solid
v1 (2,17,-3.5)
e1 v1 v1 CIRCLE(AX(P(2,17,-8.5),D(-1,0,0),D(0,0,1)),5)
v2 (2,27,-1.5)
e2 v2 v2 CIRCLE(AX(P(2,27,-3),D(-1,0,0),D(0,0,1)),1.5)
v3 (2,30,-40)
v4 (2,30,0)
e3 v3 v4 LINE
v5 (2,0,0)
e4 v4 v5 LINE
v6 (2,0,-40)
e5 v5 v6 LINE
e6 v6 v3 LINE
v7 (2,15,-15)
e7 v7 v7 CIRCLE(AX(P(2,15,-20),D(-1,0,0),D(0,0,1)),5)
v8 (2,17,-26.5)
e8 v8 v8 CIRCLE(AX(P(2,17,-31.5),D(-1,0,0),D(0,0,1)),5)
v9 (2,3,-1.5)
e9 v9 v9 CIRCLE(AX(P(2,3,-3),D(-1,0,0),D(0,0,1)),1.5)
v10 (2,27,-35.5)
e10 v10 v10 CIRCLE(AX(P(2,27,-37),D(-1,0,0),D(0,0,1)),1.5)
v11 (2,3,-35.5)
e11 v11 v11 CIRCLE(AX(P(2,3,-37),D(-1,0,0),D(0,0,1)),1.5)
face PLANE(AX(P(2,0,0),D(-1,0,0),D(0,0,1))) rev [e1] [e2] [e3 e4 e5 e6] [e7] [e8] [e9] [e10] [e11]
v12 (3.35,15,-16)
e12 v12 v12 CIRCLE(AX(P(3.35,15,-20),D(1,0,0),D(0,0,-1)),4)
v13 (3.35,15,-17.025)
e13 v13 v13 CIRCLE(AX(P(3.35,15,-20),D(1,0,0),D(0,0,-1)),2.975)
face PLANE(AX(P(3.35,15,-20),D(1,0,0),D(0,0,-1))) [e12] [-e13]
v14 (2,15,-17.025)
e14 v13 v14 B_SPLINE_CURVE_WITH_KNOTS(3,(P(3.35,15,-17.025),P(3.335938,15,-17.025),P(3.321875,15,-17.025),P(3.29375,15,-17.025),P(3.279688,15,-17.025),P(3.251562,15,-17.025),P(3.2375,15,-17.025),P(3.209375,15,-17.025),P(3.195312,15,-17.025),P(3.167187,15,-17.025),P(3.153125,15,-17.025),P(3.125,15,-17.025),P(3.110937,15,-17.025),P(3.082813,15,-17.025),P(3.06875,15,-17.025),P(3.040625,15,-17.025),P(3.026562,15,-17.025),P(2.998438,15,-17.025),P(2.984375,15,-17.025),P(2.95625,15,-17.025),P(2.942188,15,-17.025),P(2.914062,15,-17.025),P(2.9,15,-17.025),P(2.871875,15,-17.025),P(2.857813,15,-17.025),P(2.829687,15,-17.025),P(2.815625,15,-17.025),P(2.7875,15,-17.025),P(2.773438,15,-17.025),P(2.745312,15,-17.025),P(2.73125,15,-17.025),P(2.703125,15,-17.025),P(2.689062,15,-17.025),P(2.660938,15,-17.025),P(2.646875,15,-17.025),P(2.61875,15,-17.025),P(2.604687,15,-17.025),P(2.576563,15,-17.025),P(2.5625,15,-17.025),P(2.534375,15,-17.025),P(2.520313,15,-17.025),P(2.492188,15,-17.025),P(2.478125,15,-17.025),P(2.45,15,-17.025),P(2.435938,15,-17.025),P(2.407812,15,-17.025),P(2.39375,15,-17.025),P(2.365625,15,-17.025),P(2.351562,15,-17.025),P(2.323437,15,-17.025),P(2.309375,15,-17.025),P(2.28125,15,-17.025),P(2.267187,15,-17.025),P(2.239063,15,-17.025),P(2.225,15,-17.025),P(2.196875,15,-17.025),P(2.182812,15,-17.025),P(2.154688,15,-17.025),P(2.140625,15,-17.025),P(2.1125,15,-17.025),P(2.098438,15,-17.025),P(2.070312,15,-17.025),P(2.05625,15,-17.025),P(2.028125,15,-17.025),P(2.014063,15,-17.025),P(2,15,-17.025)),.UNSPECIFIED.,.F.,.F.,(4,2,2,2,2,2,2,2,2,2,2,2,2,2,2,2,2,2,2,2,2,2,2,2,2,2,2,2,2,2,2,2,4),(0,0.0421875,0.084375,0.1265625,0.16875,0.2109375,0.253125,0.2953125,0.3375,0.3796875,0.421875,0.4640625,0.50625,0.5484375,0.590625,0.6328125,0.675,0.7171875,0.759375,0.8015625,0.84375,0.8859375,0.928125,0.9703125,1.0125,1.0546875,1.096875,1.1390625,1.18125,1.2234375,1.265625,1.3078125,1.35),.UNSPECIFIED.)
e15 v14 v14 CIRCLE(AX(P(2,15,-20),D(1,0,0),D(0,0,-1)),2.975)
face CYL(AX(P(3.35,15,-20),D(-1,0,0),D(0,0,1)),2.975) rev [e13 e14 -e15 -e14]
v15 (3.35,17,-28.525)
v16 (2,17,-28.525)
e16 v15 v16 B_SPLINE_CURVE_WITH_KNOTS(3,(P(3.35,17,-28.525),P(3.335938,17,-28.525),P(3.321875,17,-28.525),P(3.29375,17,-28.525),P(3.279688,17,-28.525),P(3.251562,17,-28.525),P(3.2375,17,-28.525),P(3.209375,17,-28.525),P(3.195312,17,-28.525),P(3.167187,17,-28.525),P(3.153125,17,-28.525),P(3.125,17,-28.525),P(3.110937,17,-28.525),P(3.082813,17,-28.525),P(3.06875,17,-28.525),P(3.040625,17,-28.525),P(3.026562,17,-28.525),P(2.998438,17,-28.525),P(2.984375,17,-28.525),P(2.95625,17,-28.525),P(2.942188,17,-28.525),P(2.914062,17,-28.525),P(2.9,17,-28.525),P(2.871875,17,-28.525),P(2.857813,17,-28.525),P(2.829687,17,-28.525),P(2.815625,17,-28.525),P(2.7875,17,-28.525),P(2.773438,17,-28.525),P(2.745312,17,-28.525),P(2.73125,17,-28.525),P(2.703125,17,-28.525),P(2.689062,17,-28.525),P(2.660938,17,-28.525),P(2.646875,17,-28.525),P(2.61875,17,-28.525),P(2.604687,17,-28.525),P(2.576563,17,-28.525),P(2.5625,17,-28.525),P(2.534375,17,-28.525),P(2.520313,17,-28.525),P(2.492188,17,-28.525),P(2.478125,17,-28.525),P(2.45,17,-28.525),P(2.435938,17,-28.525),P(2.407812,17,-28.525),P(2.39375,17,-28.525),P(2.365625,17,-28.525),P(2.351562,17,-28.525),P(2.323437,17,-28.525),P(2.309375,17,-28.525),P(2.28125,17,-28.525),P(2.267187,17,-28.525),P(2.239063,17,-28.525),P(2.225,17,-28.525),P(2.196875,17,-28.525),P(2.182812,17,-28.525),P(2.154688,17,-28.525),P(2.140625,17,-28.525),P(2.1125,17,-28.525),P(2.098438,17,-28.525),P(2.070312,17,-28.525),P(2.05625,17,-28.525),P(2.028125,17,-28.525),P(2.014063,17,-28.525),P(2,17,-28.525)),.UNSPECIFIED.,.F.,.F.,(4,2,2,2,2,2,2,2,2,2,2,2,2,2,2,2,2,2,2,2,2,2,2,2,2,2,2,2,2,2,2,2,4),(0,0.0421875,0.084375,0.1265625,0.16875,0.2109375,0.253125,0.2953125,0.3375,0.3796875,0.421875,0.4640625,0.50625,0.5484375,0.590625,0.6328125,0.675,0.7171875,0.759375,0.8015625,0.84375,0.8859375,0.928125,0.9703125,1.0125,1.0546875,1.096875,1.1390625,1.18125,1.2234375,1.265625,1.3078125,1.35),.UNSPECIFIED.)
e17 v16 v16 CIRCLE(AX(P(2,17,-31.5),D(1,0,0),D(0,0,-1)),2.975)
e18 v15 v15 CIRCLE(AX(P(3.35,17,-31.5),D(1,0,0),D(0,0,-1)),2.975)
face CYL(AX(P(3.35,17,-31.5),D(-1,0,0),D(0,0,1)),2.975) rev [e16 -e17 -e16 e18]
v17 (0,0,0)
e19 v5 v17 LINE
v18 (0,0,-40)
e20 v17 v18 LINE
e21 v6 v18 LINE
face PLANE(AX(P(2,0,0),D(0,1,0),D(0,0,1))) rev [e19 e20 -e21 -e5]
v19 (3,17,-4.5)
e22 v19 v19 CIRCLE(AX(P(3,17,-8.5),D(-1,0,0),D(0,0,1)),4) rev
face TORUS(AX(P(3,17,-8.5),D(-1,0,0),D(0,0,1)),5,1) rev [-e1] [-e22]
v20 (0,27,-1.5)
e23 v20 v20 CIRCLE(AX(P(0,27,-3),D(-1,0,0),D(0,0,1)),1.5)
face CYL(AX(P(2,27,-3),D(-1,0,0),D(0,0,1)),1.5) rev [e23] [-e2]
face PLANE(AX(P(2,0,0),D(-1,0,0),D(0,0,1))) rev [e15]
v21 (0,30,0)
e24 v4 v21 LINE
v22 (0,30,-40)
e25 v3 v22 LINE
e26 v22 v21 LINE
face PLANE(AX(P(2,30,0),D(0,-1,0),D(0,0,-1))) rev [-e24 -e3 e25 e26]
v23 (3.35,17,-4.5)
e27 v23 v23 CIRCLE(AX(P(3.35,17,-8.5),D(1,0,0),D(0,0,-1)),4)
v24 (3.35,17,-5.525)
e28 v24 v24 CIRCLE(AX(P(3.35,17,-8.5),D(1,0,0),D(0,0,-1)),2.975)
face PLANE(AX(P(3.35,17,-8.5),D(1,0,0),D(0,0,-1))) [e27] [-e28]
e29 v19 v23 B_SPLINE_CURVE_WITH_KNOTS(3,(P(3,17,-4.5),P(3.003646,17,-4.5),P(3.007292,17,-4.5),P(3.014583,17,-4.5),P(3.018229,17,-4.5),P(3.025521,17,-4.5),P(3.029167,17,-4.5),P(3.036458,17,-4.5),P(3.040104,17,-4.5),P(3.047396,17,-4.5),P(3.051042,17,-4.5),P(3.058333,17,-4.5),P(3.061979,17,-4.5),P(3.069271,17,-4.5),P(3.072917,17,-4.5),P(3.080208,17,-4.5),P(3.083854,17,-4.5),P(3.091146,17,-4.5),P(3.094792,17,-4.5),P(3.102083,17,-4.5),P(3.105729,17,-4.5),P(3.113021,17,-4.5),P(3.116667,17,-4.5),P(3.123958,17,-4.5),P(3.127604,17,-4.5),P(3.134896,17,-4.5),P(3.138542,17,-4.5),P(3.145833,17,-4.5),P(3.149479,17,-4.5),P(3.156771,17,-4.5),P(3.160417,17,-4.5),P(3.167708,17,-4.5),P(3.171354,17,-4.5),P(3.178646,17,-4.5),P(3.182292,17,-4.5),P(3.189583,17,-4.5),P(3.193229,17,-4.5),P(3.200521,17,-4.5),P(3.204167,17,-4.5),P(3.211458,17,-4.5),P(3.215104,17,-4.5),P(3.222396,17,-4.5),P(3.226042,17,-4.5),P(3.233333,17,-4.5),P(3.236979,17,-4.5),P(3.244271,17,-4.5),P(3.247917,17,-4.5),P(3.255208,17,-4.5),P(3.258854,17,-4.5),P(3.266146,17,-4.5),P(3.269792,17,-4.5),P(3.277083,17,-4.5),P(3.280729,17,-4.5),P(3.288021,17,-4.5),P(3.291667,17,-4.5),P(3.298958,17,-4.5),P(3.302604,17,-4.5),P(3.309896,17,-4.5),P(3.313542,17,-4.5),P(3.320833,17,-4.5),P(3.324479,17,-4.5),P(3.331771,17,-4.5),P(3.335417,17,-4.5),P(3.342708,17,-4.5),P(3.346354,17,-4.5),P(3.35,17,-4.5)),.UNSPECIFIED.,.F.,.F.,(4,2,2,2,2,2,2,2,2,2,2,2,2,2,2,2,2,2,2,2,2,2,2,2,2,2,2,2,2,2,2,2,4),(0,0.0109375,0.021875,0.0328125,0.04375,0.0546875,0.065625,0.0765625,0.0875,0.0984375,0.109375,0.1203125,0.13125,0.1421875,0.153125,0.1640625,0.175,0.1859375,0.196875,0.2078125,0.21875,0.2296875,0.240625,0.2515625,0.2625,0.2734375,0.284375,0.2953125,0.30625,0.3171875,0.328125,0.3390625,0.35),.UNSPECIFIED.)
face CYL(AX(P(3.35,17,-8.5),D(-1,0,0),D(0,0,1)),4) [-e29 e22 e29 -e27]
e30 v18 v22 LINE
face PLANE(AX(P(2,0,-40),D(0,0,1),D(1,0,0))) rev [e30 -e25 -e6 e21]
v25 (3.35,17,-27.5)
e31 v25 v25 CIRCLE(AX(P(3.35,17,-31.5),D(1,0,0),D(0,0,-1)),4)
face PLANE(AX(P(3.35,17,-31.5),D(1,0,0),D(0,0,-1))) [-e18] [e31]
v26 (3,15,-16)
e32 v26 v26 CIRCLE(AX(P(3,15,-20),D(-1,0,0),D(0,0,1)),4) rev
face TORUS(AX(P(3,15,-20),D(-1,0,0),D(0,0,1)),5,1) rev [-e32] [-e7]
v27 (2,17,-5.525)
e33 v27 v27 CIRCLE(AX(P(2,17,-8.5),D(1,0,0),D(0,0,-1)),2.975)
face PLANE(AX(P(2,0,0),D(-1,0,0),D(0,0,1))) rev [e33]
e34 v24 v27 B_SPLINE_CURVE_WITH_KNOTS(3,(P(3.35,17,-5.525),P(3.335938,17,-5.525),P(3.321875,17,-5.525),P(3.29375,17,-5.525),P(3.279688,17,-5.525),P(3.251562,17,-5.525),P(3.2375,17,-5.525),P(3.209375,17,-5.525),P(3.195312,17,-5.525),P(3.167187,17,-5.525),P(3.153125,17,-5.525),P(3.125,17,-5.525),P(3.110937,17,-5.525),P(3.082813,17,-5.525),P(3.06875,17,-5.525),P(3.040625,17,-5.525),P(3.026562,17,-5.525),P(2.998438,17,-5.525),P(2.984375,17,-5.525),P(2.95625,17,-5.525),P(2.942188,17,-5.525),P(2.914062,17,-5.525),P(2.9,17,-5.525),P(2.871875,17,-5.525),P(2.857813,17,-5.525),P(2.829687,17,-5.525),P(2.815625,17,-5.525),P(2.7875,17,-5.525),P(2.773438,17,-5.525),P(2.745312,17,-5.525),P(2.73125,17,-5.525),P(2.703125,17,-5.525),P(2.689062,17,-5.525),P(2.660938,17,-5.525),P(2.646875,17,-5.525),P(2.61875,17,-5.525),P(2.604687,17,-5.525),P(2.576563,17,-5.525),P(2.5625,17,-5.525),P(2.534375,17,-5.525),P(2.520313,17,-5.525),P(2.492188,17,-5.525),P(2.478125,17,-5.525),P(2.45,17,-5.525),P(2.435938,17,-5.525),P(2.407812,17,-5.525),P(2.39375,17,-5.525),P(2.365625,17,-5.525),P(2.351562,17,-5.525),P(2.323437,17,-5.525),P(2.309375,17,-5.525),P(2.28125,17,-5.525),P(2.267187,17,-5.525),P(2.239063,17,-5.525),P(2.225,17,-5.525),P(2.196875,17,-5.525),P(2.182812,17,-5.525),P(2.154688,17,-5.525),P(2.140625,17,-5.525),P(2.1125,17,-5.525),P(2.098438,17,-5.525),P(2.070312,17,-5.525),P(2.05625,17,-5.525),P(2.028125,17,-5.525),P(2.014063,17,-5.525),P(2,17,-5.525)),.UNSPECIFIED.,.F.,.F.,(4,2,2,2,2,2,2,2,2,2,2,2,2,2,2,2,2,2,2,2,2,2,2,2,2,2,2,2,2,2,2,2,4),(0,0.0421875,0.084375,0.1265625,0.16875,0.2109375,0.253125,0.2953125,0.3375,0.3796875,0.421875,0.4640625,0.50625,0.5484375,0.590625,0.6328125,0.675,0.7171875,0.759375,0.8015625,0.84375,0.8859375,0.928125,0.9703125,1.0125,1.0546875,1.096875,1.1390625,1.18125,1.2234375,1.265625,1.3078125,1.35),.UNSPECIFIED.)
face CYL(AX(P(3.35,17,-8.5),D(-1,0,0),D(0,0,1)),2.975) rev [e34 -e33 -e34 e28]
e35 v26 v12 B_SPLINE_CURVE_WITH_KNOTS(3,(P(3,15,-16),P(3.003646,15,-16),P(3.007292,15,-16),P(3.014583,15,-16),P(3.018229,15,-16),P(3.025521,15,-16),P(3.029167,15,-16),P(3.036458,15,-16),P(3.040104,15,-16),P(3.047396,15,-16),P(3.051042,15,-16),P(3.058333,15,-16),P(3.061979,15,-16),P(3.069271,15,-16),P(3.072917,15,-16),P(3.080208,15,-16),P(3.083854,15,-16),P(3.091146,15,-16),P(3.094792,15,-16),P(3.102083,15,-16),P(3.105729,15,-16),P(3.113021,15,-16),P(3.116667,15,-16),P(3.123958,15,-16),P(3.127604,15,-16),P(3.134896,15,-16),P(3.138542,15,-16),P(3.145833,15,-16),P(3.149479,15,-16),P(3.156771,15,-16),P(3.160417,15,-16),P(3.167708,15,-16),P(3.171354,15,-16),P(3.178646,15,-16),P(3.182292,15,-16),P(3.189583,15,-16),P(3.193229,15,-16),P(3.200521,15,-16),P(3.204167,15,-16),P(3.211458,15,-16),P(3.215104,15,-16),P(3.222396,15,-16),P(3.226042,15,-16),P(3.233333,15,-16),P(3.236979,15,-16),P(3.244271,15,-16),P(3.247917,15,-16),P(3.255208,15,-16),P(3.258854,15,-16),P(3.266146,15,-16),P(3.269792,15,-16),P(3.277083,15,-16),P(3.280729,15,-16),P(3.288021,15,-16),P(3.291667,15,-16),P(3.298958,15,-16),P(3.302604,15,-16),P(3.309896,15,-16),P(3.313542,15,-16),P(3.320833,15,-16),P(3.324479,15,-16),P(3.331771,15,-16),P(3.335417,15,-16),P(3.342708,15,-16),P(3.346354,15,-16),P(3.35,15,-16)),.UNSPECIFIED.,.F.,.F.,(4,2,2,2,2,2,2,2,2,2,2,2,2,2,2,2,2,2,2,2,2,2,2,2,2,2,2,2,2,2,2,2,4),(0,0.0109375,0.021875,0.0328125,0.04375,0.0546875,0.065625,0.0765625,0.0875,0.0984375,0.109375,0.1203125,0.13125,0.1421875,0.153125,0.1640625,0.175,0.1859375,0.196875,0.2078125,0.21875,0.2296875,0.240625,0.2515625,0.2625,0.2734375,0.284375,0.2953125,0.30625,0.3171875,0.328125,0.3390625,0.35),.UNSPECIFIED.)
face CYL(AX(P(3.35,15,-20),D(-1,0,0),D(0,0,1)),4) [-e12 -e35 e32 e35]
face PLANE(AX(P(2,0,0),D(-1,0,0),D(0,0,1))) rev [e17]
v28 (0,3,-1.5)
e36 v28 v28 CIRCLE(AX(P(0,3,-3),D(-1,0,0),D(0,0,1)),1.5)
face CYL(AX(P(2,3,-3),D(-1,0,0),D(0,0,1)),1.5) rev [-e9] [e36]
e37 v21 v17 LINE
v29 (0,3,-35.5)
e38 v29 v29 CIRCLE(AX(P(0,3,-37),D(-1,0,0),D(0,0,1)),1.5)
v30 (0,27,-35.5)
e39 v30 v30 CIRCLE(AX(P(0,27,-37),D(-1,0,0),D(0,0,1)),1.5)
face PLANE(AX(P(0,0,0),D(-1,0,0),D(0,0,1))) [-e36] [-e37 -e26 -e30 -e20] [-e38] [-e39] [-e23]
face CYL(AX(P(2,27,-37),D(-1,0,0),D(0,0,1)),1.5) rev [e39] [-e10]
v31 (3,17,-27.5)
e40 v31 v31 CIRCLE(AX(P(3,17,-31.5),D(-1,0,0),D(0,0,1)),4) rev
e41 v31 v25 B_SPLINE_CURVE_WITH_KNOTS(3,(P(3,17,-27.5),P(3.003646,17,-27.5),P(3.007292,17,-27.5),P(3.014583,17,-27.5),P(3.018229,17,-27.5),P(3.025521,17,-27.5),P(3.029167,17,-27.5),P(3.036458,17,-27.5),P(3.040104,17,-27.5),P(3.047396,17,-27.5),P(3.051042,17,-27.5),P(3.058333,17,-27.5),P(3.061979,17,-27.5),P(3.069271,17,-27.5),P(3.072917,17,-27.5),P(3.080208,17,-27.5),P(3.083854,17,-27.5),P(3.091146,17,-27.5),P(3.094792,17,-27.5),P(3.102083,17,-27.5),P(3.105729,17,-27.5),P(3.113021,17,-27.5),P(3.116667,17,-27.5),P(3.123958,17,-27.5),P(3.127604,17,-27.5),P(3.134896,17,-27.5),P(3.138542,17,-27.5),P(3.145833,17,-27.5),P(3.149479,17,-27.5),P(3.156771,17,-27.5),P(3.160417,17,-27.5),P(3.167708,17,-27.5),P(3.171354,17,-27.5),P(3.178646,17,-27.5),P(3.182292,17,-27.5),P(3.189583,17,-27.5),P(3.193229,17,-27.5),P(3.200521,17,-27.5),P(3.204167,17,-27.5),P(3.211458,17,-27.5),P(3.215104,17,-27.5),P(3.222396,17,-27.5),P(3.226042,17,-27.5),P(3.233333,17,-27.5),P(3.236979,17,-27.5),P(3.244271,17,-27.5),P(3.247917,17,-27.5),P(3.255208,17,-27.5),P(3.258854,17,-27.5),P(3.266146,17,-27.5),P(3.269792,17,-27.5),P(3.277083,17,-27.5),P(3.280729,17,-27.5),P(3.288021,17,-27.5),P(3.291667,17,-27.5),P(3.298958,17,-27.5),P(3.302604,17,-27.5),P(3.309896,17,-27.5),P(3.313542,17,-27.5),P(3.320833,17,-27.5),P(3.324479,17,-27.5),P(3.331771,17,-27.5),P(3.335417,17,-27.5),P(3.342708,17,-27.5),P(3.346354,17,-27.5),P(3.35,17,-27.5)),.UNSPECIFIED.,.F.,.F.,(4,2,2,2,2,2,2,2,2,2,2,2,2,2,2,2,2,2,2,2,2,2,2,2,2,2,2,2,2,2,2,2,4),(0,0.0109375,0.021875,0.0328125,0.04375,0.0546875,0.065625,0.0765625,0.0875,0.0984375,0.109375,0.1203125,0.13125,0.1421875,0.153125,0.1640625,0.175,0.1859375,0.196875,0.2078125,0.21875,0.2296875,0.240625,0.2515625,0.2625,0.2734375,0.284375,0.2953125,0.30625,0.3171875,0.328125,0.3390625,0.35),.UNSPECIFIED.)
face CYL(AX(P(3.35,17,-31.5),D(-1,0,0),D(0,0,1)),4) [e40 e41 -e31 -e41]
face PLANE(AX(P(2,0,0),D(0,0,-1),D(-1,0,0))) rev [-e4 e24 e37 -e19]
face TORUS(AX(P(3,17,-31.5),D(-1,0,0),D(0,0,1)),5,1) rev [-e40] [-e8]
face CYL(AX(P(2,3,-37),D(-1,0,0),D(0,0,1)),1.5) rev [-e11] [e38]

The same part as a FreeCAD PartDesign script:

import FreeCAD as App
import Part
import Sketcher
from FreeCAD import Vector
Q = App.Units.Quantity


def edges_at(feature, points):
    """Names of the edges that pass closest to the given points."""
    edges = feature.Shape.Edges
    near = lambda p: min(range(len(edges)), key=lambda i: edges[i].distToShape(Part.Vertex(*p))[0])
    return sorted({f"Edge{near(p) + 1}" for p in points})


def add_polygon(sketch, points):
    """Adds a closed chain of lines whose ends are joined by coincident constraints."""
    first, n = sketch.GeometryCount, len(points)
    for a, b in zip(points, points[1:] + points[:1]):
        sketch.addGeometry(Part.LineSegment(App.Vector(*a, 0), App.Vector(*b, 0)), False)
    for i in range(n):
        sketch.addConstraint(Sketcher.Constraint("Coincident", first + i, 2, first + (i + 1) % n, 1))

doc = App.newDocument("Part")
body = doc.addObject("PartDesign::Body", "Body")

# Sketch on YZ plane
sketch1 = body.newObject("Sketcher::SketchObject", "Sketch")
sketch1.AttachmentSupport = (doc.getObject("YZ_Plane"), [""])
sketch1.MapMode = "FlatFace"
add_polygon(sketch1, [(30, 0), (0, 0), (0, -40), (30, -40)])  # lines 0-3
sketch1.addConstraint([
    Sketcher.Constraint("Horizontal", 0),
    Sketcher.Constraint("Vertical", 1),
    Sketcher.Constraint("Horizontal", 2),
    Sketcher.Constraint("Vertical", 3),
    Sketcher.Constraint("Coincident", 0, 2, -1, 1),
    Sketcher.Constraint("DistanceX", 0, 2, 0, 1, Q("30 mm")),
    Sketcher.Constraint("DistanceY", 1, 2, 1, 1, Q("40 mm")),
])
pad1 = body.newObject("PartDesign::Pad", "Pad")
pad1.Profile = sketch1
pad1.Length = 2

# Sketch on YZ plane
sketch2 = body.newObject("Sketcher::SketchObject", "Sketch001")
sketch2.AttachmentSupport = (doc.getObject("YZ_Plane"), [""])
sketch2.MapMode = "FlatFace"
sketch2.AttachmentOffset = App.Placement(Vector(0, 0, 2), App.Rotation())
sketch2.addGeometry([
    Part.Circle(Vector(17, -8.5, 0), Vector(0, 0, 1), 4),  # 0
    Part.Circle(Vector(17, -8.5, 0), Vector(0, 0, 1), 2.975),  # 1
    Part.Circle(Vector(15, -20, 0), Vector(0, 0, 1), 4),  # 2
    Part.Circle(Vector(15, -20, 0), Vector(0, 0, 1), 2.975),  # 3
    Part.Circle(Vector(17, -31.5, 0), Vector(0, 0, 1), 4),  # 4
    Part.Circle(Vector(17, -31.5, 0), Vector(0, 0, 1), 2.975),  # 5
], False)
sketch2.addConstraint([
    Sketcher.Constraint("Coincident", 1, 3, 0, 3),
    Sketcher.Constraint("Coincident", 3, 3, 2, 3),
    Sketcher.Constraint("Coincident", 5, 3, 4, 3),
    Sketcher.Constraint("Equal", 0, 2),
    Sketcher.Constraint("Equal", 1, 3),
    Sketcher.Constraint("Equal", 2, 4),
    Sketcher.Constraint("Equal", 3, 5),
    Sketcher.Constraint("Vertical", 1, 3, 4, 3),
    Sketcher.Constraint("Diameter", 0, Q("8 mm")),
    Sketcher.Constraint("Diameter", 1, Q("5.95 mm")),
    Sketcher.Constraint("DistanceX", -1, 1, 0, 3, Q("17 mm")),
    Sketcher.Constraint("DistanceX", -1, 1, 2, 3, Q("15 mm")),
    Sketcher.Constraint("DistanceY", 2, 3, -1, 1, Q("20 mm")),
    Sketcher.Constraint("DistanceY", 4, 3, 0, 3, Q("23 mm")),
    Sketcher.Constraint("DistanceY", 0, 3, -1, 1, Q("8.5 mm")),
])
pad2 = body.newObject("PartDesign::Pad", "Pad001")
pad2.Profile = sketch2
pad2.Length = 1.35
doc.recompute()

fillet = body.newObject("PartDesign::Fillet", "Fillet")
fillet.Base = (pad2, edges_at(pad2, [(2, 17, -12.5), (2, 15, -24), (2, 17, -35.5)]))
fillet.Radius = 1

# Sketch on YZ plane
sketch3 = body.newObject("Sketcher::SketchObject", "Sketch002")
sketch3.AttachmentSupport = (doc.getObject("YZ_Plane"), [""])
sketch3.MapMode = "FlatFace"
sketch3.addGeometry([
    Part.Circle(Vector(27, -37, 0), Vector(0, 0, 1), 1.5),
    Part.Circle(Vector(27, -3, 0), Vector(0, 0, 1), 1.5),
    Part.Circle(Vector(3, -37, 0), Vector(0, 0, 1), 1.5),
    Part.Circle(Vector(3, -3, 0), Vector(0, 0, 1), 1.5),
], False)
sketch3.addConstraint([
    Sketcher.Constraint("Equal", 0, 1),
    Sketcher.Constraint("Equal", 1, 2),
    Sketcher.Constraint("Equal", 2, 3),
    Sketcher.Constraint("Horizontal", 0, 3, 2, 3),
    Sketcher.Constraint("Horizontal", 1, 3, 3, 3),
    Sketcher.Constraint("Vertical", 0, 3, 1, 3),
    Sketcher.Constraint("Vertical", 2, 3, 3, 3),
    Sketcher.Constraint("Diameter", 0, Q("3 mm")),
    Sketcher.Constraint("DistanceX", -1, 1, 0, 3, Q("27 mm")),
    Sketcher.Constraint("DistanceY", 0, 3, -1, 1, Q("37 mm")),
    Sketcher.Constraint("DistanceY", 1, 3, -1, 1, Q("3 mm")),
    Sketcher.Constraint("DistanceX", -1, 1, 2, 3, Q("3 mm")),
])
pocket1 = body.newObject("PartDesign::Pocket", "Pocket")
pocket1.Profile = sketch3
pocket1.Length = 2
pocket1.Reversed = True

doc.recompute()
